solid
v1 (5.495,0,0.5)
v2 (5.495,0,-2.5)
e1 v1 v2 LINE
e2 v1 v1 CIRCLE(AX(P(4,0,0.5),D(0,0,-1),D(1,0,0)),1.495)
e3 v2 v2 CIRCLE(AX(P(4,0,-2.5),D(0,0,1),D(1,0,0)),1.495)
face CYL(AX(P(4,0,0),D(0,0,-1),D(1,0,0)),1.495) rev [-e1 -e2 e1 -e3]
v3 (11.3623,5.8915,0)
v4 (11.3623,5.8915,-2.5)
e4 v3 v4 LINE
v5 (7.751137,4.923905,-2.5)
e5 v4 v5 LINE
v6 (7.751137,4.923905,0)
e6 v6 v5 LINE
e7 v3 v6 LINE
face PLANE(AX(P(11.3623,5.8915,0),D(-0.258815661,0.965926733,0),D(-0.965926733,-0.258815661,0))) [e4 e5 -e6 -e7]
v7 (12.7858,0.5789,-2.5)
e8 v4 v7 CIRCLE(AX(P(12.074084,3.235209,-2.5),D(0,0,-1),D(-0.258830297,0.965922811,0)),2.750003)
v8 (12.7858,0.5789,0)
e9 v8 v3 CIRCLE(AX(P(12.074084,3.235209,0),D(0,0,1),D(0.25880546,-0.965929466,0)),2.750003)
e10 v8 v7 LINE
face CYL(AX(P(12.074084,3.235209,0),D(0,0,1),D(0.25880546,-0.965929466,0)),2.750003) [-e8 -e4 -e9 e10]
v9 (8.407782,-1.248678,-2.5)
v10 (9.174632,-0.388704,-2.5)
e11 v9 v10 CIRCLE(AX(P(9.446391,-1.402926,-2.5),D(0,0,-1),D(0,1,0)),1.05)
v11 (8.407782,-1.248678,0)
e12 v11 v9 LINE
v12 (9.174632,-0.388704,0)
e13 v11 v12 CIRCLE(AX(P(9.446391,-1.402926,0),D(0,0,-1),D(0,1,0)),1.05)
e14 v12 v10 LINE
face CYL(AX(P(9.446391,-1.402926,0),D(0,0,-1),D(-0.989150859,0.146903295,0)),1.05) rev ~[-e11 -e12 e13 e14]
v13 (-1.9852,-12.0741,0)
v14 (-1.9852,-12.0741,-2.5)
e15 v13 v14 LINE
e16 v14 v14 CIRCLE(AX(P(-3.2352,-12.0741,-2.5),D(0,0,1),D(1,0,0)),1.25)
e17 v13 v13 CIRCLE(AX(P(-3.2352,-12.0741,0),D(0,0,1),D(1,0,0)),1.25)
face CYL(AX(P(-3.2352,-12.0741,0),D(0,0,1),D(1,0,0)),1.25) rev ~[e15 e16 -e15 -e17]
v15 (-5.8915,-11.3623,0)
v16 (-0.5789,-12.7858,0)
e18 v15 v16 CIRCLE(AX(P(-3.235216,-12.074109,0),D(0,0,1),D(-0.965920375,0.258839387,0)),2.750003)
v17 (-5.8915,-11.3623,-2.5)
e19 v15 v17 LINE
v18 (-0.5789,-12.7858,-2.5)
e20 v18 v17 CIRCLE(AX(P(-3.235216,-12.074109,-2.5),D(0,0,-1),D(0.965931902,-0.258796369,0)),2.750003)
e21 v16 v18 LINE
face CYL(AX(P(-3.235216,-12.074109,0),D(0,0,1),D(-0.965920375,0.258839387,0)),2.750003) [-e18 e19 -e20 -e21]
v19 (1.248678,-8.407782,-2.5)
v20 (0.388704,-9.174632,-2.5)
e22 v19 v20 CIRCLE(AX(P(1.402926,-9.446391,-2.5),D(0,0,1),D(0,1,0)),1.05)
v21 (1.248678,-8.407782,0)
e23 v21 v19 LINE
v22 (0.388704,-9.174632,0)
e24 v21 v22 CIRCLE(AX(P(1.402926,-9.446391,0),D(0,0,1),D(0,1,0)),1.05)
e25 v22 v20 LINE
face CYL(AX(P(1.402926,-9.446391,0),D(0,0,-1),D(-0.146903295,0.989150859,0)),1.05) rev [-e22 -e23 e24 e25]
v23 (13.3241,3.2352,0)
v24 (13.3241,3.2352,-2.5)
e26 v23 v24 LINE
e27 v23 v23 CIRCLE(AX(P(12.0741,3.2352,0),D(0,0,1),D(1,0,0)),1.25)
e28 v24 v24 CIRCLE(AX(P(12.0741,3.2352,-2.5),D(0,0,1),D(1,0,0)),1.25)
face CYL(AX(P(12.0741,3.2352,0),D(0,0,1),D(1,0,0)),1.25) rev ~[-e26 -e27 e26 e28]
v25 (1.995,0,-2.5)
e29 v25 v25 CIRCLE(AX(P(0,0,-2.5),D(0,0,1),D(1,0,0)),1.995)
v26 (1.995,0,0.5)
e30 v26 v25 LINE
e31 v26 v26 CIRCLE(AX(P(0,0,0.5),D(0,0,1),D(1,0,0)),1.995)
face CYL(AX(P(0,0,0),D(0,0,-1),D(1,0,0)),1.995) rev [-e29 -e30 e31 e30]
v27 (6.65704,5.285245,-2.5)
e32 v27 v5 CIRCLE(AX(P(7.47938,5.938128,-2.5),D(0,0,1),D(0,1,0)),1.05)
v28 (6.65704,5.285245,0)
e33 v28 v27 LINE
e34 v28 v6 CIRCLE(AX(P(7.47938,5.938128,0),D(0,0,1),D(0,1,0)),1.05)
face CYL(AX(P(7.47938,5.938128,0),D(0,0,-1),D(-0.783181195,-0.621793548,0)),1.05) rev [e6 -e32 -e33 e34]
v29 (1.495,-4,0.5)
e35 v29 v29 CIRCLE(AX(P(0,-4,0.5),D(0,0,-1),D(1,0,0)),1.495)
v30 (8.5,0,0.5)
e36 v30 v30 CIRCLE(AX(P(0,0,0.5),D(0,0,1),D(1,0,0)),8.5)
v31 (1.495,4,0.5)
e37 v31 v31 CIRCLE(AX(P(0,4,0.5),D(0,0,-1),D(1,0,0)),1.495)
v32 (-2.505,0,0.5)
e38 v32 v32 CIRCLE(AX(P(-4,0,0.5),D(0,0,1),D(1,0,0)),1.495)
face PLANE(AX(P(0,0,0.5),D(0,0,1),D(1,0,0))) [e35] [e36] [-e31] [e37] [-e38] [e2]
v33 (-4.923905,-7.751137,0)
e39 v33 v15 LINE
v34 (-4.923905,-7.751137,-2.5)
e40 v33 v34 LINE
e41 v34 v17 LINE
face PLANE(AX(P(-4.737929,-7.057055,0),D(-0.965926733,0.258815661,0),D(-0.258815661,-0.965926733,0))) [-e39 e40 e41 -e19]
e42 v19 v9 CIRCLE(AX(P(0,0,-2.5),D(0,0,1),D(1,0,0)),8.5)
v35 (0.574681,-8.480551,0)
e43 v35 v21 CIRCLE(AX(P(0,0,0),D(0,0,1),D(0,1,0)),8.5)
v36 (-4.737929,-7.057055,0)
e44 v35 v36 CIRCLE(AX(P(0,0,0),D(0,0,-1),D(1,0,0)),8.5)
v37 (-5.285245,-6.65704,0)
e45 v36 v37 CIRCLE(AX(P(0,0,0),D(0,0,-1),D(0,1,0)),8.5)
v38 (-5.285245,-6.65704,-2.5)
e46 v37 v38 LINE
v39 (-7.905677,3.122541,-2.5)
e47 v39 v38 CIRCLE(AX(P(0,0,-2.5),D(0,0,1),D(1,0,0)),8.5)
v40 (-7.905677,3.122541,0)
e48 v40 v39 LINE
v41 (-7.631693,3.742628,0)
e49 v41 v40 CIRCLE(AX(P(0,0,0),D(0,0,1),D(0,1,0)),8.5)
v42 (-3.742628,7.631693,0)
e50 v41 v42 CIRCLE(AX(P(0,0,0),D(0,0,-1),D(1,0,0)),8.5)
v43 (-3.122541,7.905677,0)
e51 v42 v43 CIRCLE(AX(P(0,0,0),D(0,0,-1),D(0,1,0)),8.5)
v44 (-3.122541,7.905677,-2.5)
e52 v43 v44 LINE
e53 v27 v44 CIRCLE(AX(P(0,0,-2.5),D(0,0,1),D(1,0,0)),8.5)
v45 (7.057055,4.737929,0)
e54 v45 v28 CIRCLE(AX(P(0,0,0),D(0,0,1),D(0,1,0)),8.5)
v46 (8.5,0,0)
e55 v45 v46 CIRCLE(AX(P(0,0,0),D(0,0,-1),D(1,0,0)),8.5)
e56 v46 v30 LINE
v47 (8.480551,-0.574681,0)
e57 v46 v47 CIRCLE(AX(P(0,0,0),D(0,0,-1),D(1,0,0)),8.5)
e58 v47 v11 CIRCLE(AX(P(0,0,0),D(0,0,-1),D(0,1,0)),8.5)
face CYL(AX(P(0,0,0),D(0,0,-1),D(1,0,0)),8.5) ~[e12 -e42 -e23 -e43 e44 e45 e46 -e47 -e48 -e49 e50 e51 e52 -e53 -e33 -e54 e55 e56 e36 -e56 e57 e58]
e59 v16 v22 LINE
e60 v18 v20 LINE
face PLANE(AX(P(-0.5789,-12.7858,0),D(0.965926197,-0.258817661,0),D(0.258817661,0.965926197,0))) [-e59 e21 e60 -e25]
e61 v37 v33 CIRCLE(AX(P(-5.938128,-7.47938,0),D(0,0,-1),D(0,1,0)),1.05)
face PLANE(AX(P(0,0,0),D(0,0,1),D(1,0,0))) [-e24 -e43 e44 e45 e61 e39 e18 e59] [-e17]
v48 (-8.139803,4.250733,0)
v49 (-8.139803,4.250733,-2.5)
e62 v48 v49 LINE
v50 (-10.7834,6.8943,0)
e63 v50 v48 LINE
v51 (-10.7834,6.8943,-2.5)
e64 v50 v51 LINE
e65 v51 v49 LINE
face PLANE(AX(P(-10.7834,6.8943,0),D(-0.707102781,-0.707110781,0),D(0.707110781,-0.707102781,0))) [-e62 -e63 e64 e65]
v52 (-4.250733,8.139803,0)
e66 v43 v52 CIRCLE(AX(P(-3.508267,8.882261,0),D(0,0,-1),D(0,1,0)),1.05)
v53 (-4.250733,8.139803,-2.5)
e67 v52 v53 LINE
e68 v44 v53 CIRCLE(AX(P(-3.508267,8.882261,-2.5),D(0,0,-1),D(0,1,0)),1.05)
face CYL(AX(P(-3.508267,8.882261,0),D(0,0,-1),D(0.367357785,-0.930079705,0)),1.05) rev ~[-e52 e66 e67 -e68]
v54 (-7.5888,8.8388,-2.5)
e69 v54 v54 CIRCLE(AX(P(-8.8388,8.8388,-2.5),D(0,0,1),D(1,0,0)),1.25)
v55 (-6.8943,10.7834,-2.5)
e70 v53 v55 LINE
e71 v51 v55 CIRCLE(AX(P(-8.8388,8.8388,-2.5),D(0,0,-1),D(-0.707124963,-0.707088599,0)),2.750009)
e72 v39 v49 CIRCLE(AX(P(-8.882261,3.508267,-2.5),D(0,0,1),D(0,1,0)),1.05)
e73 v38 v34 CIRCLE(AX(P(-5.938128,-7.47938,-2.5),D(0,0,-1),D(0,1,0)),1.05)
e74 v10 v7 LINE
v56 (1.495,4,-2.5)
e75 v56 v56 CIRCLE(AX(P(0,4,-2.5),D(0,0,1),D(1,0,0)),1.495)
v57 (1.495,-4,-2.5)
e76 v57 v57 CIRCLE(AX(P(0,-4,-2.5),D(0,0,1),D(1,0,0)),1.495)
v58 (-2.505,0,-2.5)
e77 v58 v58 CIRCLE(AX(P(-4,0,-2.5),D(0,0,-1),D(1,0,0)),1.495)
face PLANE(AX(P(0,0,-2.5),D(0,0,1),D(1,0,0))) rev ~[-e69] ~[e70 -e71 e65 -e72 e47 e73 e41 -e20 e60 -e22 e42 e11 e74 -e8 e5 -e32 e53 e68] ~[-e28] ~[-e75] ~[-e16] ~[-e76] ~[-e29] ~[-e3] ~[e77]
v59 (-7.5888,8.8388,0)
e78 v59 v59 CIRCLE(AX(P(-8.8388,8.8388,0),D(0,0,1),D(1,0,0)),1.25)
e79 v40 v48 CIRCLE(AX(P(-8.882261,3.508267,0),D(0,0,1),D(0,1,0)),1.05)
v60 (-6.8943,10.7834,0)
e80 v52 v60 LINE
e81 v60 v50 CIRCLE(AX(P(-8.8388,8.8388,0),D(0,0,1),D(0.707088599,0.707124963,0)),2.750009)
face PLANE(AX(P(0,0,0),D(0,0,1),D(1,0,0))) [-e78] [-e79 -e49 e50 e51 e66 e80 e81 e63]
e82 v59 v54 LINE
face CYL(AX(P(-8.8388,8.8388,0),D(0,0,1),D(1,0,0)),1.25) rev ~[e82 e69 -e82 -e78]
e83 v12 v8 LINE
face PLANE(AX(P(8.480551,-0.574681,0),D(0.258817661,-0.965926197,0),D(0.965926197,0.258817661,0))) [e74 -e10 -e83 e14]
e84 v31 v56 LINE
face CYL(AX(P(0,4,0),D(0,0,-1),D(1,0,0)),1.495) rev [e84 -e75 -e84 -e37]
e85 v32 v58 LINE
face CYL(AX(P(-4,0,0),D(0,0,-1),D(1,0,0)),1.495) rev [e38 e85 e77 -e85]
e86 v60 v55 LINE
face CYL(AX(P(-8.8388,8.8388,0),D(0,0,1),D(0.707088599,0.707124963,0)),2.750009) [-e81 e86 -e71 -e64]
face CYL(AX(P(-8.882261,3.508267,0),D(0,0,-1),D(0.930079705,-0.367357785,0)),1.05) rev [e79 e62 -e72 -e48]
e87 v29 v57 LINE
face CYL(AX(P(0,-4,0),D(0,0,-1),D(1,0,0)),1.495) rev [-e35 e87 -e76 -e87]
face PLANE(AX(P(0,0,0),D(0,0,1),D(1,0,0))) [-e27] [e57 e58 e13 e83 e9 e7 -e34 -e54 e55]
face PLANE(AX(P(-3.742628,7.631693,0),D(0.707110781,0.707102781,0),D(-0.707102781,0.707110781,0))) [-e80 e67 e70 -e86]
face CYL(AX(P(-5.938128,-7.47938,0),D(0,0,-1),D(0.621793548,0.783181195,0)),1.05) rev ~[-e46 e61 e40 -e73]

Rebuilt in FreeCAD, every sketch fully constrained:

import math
import FreeCAD as App
import Part
import Sketcher
Q = App.Units.Quantity


def edges_at(feature, points):
    """Names of the edges that pass closest to the given points."""
    edges = feature.Shape.Edges
    near = lambda p: min(range(len(edges)), key=lambda i: edges[i].distToShape(Part.Vertex(*p))[0])
    return sorted({f"Edge{near(p) + 1}" for p in points})

doc = App.newDocument("Part")
body = doc.addObject("PartDesign::Body", "Body")

# Sketch on XY plane
sketch1 = body.newObject("Sketcher::SketchObject", "Sketch")
sketch1.AttachmentSupport = (doc.getObject("XY_Plane"), [""])
sketch1.MapMode = "FlatFace"
sketch1.addGeometry([
    Part.Circle(App.Vector(0, 0, 0), App.Vector(0, 0, 1), 8.5),  # 0
    Part.Circle(App.Vector(-4, 0, 0), App.Vector(0, 0, 1), 1.5),  # 1
    Part.Circle(App.Vector(0, 4, 0), App.Vector(0, 0, 1), 1.5),  # 2
    Part.Circle(App.Vector(4, 0, 0), App.Vector(0, 0, 1), 1.5),  # 3
    Part.Circle(App.Vector(0, -4, 0), App.Vector(0, 0, 1), 1.5),  # 4
    Part.Circle(App.Vector(0, 0, 0), App.Vector(0, 0, 1), 2),  # 5
], False)
sketch1.addConstraint([
    Sketcher.Constraint("Coincident", 0, 3, -1, 1),
    Sketcher.Constraint("Coincident", 5, 3, -1, 1),
    Sketcher.Constraint("Equal", 1, 2),
    Sketcher.Constraint("Equal", 2, 3),
    Sketcher.Constraint("Equal", 3, 4),
    Sketcher.Constraint("Symmetric", 1, 3, 3, 3, -1, 1),
    Sketcher.Constraint("Symmetric", 2, 3, 4, 3, -1, 1),
    Sketcher.Constraint("PointOnObject", 1, 3, -1),
    Sketcher.Constraint("PointOnObject", 2, 3, -2),
    Sketcher.Constraint("Diameter", 0, Q("17 mm")),
    Sketcher.Constraint("Diameter", 1, Q("2.99 mm")),
    Sketcher.Constraint("Diameter", 5, Q("3.99 mm")),
    Sketcher.Constraint("DistanceX", 1, 3, -1, 1, Q("4 mm")),
    Sketcher.Constraint("DistanceY", -1, 1, 2, 3, Q("4 mm")),
])
pad1 = body.newObject("PartDesign::Pad", "Pad")
pad1.Profile = sketch1
pad1.Length = 0.5

# Sketch on XY plane
sketch2 = body.newObject("Sketcher::SketchObject", "Sketch001")
sketch2.AttachmentSupport = (doc.getObject("XY_Plane"), [""])
sketch2.MapMode = "FlatFace"
sketch2.addGeometry([
    Part.ArcOfCircle(Part.Circle(App.Vector(0, 0, 0), App.Vector(0, 0, 1), 8.5), math.radians(154), math.radians(236)),  # 0
    Part.LineSegment(App.Vector(-4.7, -7.1, 0), App.Vector(-5.9, -11.4, 0)),  # 1
    Part.ArcOfCircle(Part.Circle(App.Vector(-3.2, -12.1, 0), App.Vector(0, 0, 1), 2.8), math.radians(165), math.radians(345)),  # 2
    Part.LineSegment(App.Vector(-0.6, -12.8, 0), App.Vector(0.6, -8.5, 0)),  # 3
    Part.ArcOfCircle(Part.Circle(App.Vector(0, 0, 0), App.Vector(0, 0, 1), 8.5), math.radians(-86), math.radians(-4)),  # 4
    Part.LineSegment(App.Vector(8.5, -0.6, 0), App.Vector(12.8, 0.6, 0)),  # 5
    Part.ArcOfCircle(Part.Circle(App.Vector(12.1, 3.2, 0), App.Vector(0, 0, 1), 2.7), math.radians(-75), math.radians(105)),  # 6
    Part.LineSegment(App.Vector(11.4, 5.9, 0), App.Vector(7.1, 4.7, 0)),  # 7
    Part.ArcOfCircle(Part.Circle(App.Vector(0, 0, 0), App.Vector(0, 0, 1), 8.5), math.radians(34), math.radians(116)),  # 8
    Part.LineSegment(App.Vector(-3.7, 7.6, 0), App.Vector(-6.9, 10.8, 0)),  # 9
    Part.ArcOfCircle(Part.Circle(App.Vector(-8.8, 8.8, 0), App.Vector(0, 0, 1), 2.8), math.radians(45), math.radians(225)),  # 10
    Part.LineSegment(App.Vector(-10.8, 6.9, 0), App.Vector(-7.6, 3.7, 0)),  # 11
    Part.Circle(App.Vector(-4, 0, 0), App.Vector(0, 0, 1), 1.5),  # 12
    Part.Circle(App.Vector(0, 4, 0), App.Vector(0, 0, 1), 1.5),  # 13
    Part.Circle(App.Vector(4, 0, 0), App.Vector(0, 0, 1), 1.5),  # 14
    Part.Circle(App.Vector(0, -4, 0), App.Vector(0, 0, 1), 1.5),  # 15
    Part.Circle(App.Vector(0, 0, 0), App.Vector(0, 0, 1), 2),  # 16
    Part.Circle(App.Vector(-8.8, 8.8, 0), App.Vector(0, 0, 1), 1.2),  # 17
    Part.Circle(App.Vector(12.1, 3.2, 0), App.Vector(0, 0, 1), 1.2),  # 18
    Part.Circle(App.Vector(-3.2, -12.1, 0), App.Vector(0, 0, 1), 1.2),  # 19
], False)
sketch2.addConstraint([
    Sketcher.Constraint("Coincident", 0, 2, 1, 1),
    Sketcher.Constraint("Tangent", 1, 2, 2, 1),
    Sketcher.Constraint("Tangent", 2, 2, 3, 1),
    Sketcher.Constraint("Coincident", 3, 2, 4, 1),
    Sketcher.Constraint("Coincident", 4, 2, 5, 1),
    Sketcher.Constraint("Tangent", 5, 2, 6, 1),
    Sketcher.Constraint("Tangent", 6, 2, 7, 1),
    Sketcher.Constraint("Coincident", 7, 2, 8, 1),
    Sketcher.Constraint("Coincident", 8, 2, 9, 1),
    Sketcher.Constraint("Tangent", 9, 2, 10, 1),
    Sketcher.Constraint("Tangent", 10, 2, 11, 1),
    Sketcher.Constraint("Coincident", 11, 2, 0, 1),
    Sketcher.Constraint("Coincident", 0, 3, -1, 1),
    Sketcher.Constraint("Coincident", 4, 3, -1, 1),
    Sketcher.Constraint("Coincident", 8, 3, -1, 1),
    Sketcher.Constraint("Coincident", 16, 3, -1, 1),
    Sketcher.Constraint("Coincident", 17, 3, 10, 3),
    Sketcher.Constraint("Coincident", 18, 3, 6, 3),
    Sketcher.Constraint("Coincident", 19, 3, 2, 3),
    Sketcher.Constraint("Equal", 0, 4),
    Sketcher.Constraint("Equal", 2, 6),
    Sketcher.Constraint("Equal", 4, 8),
    Sketcher.Constraint("Equal", 6, 10),
    Sketcher.Constraint("Equal", 12, 13),
    Sketcher.Constraint("Equal", 13, 14),
    Sketcher.Constraint("Equal", 14, 15),
    Sketcher.Constraint("Equal", 17, 18),
    Sketcher.Constraint("Equal", 18, 19),
    Sketcher.Constraint("Symmetric", 12, 3, 14, 3, -1, 1),
    Sketcher.Constraint("Symmetric", 13, 3, 15, 3, -1, 1),
    Sketcher.Constraint("PointOnObject", 12, 3, -1),
    Sketcher.Constraint("PointOnObject", 13, 3, -2),
    Sketcher.Constraint("Parallel", 1, 3),
    Sketcher.Constraint("Parallel", 5, 7),
    Sketcher.Constraint("Parallel", 9, 11),
    Sketcher.Constraint("Equal", 1, 3),
    Sketcher.Constraint("Equal", 3, 5),
    Sketcher.Constraint("Equal", 5, 7),
    Sketcher.Constraint("Equal", 7, 9),
    Sketcher.Constraint("Equal", 9, 11),
    Sketcher.Constraint("Diameter", 17, Q("2.5 mm")),
    Sketcher.Constraint("Radius", 0, Q("8.5 mm")),
    Sketcher.Constraint("Diameter", 12, Q("2.99 mm")),
    Sketcher.Constraint("Diameter", 16, Q("3.99 mm")),
    Sketcher.Constraint("Angle", 11, Q("-44.9997 deg")),
    Sketcher.Constraint("Radius", 2, Q("2.75 mm")),
    Sketcher.Constraint("DistanceX", 12, 3, -1, 1, Q("4 mm")),
    Sketcher.Constraint("DistanceY", -1, 1, 13, 3, Q("4 mm")),
    Sketcher.Constraint("Angle", 1, Q("-104.9998 deg")),
    Sketcher.Constraint("Angle", 5, Q("15 deg")),
    Sketcher.Constraint("DistanceX", 2, 3, 3, 2, Q("3.81 mm")),
])
pad2 = body.newObject("PartDesign::Pad", "Pad001")
pad2.Profile = sketch2
pad2.Length = 2.5
pad2.Reversed = True
doc.recompute()

fillet = body.newObject("PartDesign::Fillet", "Fillet")
fillet.Base = (pad2, edges_at(pad2, [
    (-7.632, 3.743, -1.25),
    (-4.738, -7.057, -1.25),
    (-3.743, 7.632, -1.25),
    (7.057, 4.738, -1.25),
    (8.481, -0.575, -1.25),
    (0.575, -8.481, -1.25),
]))
fillet.Radius = 1.05

doc.recompute()
